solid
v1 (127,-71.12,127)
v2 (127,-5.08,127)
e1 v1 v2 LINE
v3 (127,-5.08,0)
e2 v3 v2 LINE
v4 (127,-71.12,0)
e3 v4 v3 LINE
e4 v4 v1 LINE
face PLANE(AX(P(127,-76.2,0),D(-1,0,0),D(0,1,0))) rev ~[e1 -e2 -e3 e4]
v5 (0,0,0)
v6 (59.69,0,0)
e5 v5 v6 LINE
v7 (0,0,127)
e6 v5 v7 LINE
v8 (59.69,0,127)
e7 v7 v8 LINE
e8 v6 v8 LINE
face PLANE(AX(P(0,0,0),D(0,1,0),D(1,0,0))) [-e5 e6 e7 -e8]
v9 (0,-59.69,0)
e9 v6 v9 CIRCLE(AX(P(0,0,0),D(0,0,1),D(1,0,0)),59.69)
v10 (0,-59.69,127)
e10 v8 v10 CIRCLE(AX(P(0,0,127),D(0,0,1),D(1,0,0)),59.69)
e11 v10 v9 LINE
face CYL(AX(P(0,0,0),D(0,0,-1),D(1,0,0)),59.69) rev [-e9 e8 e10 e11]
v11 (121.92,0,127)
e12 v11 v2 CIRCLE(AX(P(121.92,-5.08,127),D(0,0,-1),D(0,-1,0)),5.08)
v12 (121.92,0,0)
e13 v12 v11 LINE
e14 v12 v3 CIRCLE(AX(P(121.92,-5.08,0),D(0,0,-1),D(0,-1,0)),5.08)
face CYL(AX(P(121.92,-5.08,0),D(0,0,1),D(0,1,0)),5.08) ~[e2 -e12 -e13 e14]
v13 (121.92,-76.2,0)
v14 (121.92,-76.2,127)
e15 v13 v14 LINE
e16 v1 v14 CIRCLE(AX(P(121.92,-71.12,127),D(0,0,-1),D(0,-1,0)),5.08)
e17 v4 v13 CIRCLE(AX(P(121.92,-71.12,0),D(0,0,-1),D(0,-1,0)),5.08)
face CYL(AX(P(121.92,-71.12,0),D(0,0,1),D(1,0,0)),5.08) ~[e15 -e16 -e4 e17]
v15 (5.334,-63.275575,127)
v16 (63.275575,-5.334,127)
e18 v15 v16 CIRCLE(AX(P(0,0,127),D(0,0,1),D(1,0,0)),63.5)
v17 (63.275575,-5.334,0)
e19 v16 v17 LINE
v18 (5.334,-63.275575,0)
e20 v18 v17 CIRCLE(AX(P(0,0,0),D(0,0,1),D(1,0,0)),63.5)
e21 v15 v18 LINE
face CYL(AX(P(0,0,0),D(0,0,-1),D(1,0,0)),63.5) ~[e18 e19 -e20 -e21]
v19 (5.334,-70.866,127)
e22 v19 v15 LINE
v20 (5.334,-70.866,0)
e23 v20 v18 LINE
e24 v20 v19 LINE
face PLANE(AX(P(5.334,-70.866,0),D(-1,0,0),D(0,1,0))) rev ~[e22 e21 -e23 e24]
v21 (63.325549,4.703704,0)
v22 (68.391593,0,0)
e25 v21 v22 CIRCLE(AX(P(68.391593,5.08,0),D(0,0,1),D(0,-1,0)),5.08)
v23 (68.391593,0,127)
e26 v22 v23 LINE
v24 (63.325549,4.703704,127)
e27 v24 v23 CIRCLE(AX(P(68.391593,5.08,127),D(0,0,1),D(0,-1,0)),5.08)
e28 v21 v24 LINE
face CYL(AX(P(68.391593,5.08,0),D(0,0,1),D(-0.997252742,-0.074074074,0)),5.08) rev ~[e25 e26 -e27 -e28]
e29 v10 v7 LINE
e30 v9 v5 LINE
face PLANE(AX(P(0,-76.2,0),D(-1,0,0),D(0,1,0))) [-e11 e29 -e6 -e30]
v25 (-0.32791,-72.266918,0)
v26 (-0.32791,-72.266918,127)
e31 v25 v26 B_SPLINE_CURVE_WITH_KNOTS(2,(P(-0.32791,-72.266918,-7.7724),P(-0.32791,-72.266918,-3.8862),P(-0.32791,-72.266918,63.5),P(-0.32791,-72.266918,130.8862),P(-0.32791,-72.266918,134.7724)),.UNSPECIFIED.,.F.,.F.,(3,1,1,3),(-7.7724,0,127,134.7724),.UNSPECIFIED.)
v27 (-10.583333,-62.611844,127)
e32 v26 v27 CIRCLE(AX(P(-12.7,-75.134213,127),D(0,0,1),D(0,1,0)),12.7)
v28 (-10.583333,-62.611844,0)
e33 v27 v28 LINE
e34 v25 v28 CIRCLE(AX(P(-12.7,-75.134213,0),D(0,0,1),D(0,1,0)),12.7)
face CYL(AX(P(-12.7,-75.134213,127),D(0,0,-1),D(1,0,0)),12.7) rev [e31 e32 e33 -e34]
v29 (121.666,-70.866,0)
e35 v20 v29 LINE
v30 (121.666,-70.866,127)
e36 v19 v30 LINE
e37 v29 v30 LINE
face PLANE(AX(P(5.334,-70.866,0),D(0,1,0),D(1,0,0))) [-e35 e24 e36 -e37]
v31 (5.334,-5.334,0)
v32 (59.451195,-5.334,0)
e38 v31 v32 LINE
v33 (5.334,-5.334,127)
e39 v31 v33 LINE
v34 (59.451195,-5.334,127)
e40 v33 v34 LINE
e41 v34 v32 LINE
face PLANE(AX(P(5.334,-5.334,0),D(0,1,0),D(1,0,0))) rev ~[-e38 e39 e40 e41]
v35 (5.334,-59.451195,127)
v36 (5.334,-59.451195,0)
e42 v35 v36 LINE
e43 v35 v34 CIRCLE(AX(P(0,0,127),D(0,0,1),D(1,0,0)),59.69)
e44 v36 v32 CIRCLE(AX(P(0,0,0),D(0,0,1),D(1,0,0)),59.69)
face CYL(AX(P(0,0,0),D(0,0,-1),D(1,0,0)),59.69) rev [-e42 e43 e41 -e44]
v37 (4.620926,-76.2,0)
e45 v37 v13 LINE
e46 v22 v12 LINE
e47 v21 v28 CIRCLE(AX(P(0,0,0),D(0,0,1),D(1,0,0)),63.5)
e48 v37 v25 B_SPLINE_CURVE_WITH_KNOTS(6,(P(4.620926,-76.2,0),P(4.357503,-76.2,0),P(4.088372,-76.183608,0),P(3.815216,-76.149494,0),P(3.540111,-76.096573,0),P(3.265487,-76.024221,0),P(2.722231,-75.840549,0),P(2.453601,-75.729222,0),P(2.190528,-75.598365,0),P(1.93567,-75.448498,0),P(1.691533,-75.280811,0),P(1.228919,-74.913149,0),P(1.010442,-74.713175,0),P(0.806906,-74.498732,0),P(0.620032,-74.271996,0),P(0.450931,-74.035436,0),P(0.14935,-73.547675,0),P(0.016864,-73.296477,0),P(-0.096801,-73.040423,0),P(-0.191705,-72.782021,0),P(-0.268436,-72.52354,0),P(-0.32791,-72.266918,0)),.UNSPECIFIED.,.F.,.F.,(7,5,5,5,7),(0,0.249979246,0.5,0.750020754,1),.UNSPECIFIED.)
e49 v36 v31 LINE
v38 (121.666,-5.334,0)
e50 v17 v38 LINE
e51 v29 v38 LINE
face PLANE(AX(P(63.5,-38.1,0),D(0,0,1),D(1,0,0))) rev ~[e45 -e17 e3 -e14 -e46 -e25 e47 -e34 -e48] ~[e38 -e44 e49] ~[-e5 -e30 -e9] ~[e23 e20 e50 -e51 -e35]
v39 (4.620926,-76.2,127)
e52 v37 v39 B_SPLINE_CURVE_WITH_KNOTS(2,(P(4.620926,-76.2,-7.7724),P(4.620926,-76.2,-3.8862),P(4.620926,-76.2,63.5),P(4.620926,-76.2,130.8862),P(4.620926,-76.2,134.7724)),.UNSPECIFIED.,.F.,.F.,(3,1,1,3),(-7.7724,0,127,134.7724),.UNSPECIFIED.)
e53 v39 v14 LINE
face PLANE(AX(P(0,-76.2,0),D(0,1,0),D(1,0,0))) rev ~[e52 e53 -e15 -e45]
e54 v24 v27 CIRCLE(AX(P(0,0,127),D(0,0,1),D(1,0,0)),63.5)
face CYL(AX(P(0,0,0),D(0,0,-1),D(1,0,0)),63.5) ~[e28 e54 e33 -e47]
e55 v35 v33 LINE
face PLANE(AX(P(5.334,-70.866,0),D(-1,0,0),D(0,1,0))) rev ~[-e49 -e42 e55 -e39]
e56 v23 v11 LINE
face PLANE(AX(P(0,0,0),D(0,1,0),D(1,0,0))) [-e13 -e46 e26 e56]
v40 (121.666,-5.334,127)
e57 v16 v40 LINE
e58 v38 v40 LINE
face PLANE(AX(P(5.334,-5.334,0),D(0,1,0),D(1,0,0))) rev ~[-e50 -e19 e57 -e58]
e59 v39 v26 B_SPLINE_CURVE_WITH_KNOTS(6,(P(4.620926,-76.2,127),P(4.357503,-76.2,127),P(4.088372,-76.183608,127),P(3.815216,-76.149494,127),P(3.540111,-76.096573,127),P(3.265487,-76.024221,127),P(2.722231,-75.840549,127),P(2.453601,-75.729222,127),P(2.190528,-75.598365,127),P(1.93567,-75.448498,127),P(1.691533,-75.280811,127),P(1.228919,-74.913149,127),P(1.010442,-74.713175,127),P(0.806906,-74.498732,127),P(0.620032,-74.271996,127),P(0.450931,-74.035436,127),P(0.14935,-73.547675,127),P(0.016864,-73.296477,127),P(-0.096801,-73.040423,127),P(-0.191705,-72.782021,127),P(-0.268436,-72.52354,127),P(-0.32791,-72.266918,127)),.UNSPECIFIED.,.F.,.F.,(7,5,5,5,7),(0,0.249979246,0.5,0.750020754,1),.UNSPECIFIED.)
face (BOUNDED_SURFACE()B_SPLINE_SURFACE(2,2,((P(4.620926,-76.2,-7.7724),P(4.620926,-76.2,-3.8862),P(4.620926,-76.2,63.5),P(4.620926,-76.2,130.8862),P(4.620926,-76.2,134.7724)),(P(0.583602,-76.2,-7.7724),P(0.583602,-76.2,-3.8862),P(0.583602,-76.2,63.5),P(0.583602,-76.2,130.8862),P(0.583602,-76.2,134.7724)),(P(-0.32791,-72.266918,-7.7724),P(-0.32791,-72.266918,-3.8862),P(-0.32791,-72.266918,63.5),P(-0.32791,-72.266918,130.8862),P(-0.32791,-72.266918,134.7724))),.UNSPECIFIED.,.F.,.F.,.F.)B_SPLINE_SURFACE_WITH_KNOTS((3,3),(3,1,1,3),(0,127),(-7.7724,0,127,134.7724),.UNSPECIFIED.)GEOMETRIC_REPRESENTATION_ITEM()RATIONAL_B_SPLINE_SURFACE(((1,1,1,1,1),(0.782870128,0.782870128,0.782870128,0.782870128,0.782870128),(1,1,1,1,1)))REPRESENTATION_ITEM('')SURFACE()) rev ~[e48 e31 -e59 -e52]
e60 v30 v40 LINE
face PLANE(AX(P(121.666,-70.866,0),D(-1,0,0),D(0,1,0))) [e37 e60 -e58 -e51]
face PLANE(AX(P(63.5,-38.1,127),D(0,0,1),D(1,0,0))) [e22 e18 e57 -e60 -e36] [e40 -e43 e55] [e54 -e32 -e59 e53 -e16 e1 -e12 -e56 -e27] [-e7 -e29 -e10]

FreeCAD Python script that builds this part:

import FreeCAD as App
import Part
import Sketcher
from FreeCAD import Vector
Q = App.Units.Quantity


def edges_at(feature, points):
    """Names of the edges that pass closest to the given points."""
    edges = feature.Shape.Edges
    near = lambda p: min(range(len(edges)), key=lambda i: edges[i].distToShape(Part.Vertex(*p))[0])
    return sorted({f"Edge{near(p) + 1}" for p in points})

doc = App.newDocument("Part")
params = doc.addObject("Spreadsheet::Sheet", "Params")
for row, (alias, value) in enumerate([
    ("sketch1_diameter", "5 in"),
    ("sketch1_diameter2", "4.7 in"),
    ("pad1_length", "5 in"),
    ("sketch2_width", "5 in"),
    ("sketch2_height", "3 in"),
    ("sketch2_width2", "4.58 in"),
    ("sketch2_height2", "2.58 in"),
    ("pad2_length", "5 in"),
    ("fillet_radius", "0.5 in"),
    ("fillet2_radius", "0.2 in"),
    ("fillet3_radius", "0.2 in"),
    ("fillet4_radius", "0.2 in"),
    ("fillet5_radius", "0.2 in"),
], start=1):
    params.set(f"A{row}", alias)
    params.set(f"B{row}", "=" + value)
    params.setAlias(f"B{row}", alias)

body = doc.addObject("PartDesign::Body", "Body")

# Sketch on XY plane
sketch1 = body.newObject("Sketcher::SketchObject", "Sketch")
sketch1.AttachmentSupport = (doc.getObject("XY_Plane"), [""])
sketch1.MapMode = "FlatFace"
sketch1.addGeometry(Part.Circle(Vector(0, 0, 0), Vector(0, 0, 1), 63.5), False)
sketch1.addGeometry(Part.Circle(Vector(0, 0, 0), Vector(0, 0, 1), 59.69), False)
sketch1.addConstraint(Sketcher.Constraint("Coincident", 0, 3, -1, 1))
sketch1.addConstraint(Sketcher.Constraint("Coincident", 1, 3, -1, 1))
sketch1.addConstraint(Sketcher.Constraint("Diameter", 0, Q("5 in")))
sketch1.addConstraint(Sketcher.Constraint("Diameter", 1, Q("4.7 in")))
sketch1.setExpression("Constraints[2]", "Params.sketch1_diameter")
sketch1.setExpression("Constraints[3]", "Params.sketch1_diameter2")
pad1 = body.newObject("PartDesign::Pad", "Pad")
pad1.Profile = sketch1
pad1.setExpression("Length", "Params.pad1_length")

# Sketch on XY plane
sketch2 = body.newObject("Sketcher::SketchObject", "Sketch001")
sketch2.AttachmentSupport = (doc.getObject("XY_Plane"), [""])
sketch2.MapMode = "FlatFace"
sketch2.addGeometry(Part.LineSegment(Vector(0, 0, 0), Vector(0, -76.2, 0)), False)
sketch2.addGeometry(Part.LineSegment(Vector(0, -76.2, 0), Vector(127, -76.2, 0)), False)
sketch2.addGeometry(Part.LineSegment(Vector(127, -76.2, 0), Vector(127, 0, 0)), False)
sketch2.addGeometry(Part.LineSegment(Vector(127, 0, 0), Vector(0, 0, 0)), False)
sketch2.addGeometry(Part.LineSegment(Vector(121.666, -70.866, 0), Vector(5.334, -70.866, 0)), False)
sketch2.addGeometry(Part.LineSegment(Vector(5.334, -70.866, 0), Vector(5.334, -5.334, 0)), False)
sketch2.addGeometry(Part.LineSegment(Vector(5.334, -5.334, 0), Vector(121.666, -5.334, 0)), False)
sketch2.addGeometry(Part.LineSegment(Vector(121.666, -5.334, 0), Vector(121.666, -70.866, 0)), False)
sketch2.addConstraint(Sketcher.Constraint("Coincident", 0, 2, 1, 1))
sketch2.addConstraint(Sketcher.Constraint("Coincident", 1, 2, 2, 1))
sketch2.addConstraint(Sketcher.Constraint("Coincident", 2, 2, 3, 1))
sketch2.addConstraint(Sketcher.Constraint("Coincident", 3, 2, 0, 1))
sketch2.addConstraint(Sketcher.Constraint("Coincident", 4, 2, 5, 1))
sketch2.addConstraint(Sketcher.Constraint("Coincident", 5, 2, 6, 1))
sketch2.addConstraint(Sketcher.Constraint("Coincident", 6, 2, 7, 1))
sketch2.addConstraint(Sketcher.Constraint("Coincident", 7, 2, 4, 1))
sketch2.addConstraint(Sketcher.Constraint("Vertical", 0))
sketch2.addConstraint(Sketcher.Constraint("Horizontal", 1))
sketch2.addConstraint(Sketcher.Constraint("Vertical", 2))
sketch2.addConstraint(Sketcher.Constraint("Horizontal", 3))
sketch2.addConstraint(Sketcher.Constraint("Horizontal", 4))
sketch2.addConstraint(Sketcher.Constraint("Vertical", 5))
sketch2.addConstraint(Sketcher.Constraint("Horizontal", 6))
sketch2.addConstraint(Sketcher.Constraint("Vertical", 7))
sketch2.addConstraint(Sketcher.Constraint("Coincident", 3, 2, -1, 1))
sketch2.addConstraint(Sketcher.Constraint("DistanceX", 1, 1, 1, 2, Q("5 in")))
sketch2.addConstraint(Sketcher.Constraint("DistanceY", 0, 2, 0, 1, Q("3 in")))
sketch2.addConstraint(Sketcher.Constraint("DistanceX", 4, 2, 4, 1, Q("4.58 in")))
sketch2.addConstraint(Sketcher.Constraint("DistanceY", 5, 1, 5, 2, Q("2.58 in")))
sketch2.addConstraint(Sketcher.Constraint("DistanceX", -1, 1, 4, 2, Q("0.21 in")))
sketch2.addConstraint(Sketcher.Constraint("DistanceY", 4, 2, -1, 1, Q("2.79 in")))
sketch2.setExpression("Constraints[17]", "Params.sketch2_width")
sketch2.setExpression("Constraints[18]", "Params.sketch2_height")
sketch2.setExpression("Constraints[19]", "Params.sketch2_width2")
sketch2.setExpression("Constraints[20]", "Params.sketch2_height2")
pad2 = body.newObject("PartDesign::Pad", "Pad001")
pad2.Profile = sketch2
pad2.setExpression("Length", "Params.pad2_length")
doc.recompute()

fillet = body.newObject("PartDesign::Fillet", "Fillet")
fillet.Base = (pad2, edges_at(pad2, [(0, -63.5, 63.5)]))
fillet.setExpression("Radius", "Params.fillet_radius")
doc.recompute()

fillet2 = body.newObject("PartDesign::Fillet", "Fillet001")
fillet2.Base = (fillet, edges_at(fillet, [(63.5, 0, 63.5)]))
fillet2.setExpression("Radius", "Params.fillet2_radius")
doc.recompute()

fillet3 = body.newObject("PartDesign::Fillet", "Fillet002")
fillet3.Base = (fillet2, edges_at(fillet2, [(127, 0, 63.5)]))
fillet3.setExpression("Radius", "Params.fillet3_radius")
doc.recompute()

fillet4 = body.newObject("PartDesign::Fillet", "Fillet003")
fillet4.Base = (fillet3, edges_at(fillet3, [(127, -76.2, 63.5)]))
fillet4.setExpression("Radius", "Params.fillet4_radius")
doc.recompute()

fillet5 = body.newObject("PartDesign::Fillet", "Fillet004")
fillet5.Base = (fillet4, edges_at(fillet4, [(0, -76.2, 63.5)]))
fillet5.setExpression("Radius", "Params.fillet5_radius")

doc.recompute()
